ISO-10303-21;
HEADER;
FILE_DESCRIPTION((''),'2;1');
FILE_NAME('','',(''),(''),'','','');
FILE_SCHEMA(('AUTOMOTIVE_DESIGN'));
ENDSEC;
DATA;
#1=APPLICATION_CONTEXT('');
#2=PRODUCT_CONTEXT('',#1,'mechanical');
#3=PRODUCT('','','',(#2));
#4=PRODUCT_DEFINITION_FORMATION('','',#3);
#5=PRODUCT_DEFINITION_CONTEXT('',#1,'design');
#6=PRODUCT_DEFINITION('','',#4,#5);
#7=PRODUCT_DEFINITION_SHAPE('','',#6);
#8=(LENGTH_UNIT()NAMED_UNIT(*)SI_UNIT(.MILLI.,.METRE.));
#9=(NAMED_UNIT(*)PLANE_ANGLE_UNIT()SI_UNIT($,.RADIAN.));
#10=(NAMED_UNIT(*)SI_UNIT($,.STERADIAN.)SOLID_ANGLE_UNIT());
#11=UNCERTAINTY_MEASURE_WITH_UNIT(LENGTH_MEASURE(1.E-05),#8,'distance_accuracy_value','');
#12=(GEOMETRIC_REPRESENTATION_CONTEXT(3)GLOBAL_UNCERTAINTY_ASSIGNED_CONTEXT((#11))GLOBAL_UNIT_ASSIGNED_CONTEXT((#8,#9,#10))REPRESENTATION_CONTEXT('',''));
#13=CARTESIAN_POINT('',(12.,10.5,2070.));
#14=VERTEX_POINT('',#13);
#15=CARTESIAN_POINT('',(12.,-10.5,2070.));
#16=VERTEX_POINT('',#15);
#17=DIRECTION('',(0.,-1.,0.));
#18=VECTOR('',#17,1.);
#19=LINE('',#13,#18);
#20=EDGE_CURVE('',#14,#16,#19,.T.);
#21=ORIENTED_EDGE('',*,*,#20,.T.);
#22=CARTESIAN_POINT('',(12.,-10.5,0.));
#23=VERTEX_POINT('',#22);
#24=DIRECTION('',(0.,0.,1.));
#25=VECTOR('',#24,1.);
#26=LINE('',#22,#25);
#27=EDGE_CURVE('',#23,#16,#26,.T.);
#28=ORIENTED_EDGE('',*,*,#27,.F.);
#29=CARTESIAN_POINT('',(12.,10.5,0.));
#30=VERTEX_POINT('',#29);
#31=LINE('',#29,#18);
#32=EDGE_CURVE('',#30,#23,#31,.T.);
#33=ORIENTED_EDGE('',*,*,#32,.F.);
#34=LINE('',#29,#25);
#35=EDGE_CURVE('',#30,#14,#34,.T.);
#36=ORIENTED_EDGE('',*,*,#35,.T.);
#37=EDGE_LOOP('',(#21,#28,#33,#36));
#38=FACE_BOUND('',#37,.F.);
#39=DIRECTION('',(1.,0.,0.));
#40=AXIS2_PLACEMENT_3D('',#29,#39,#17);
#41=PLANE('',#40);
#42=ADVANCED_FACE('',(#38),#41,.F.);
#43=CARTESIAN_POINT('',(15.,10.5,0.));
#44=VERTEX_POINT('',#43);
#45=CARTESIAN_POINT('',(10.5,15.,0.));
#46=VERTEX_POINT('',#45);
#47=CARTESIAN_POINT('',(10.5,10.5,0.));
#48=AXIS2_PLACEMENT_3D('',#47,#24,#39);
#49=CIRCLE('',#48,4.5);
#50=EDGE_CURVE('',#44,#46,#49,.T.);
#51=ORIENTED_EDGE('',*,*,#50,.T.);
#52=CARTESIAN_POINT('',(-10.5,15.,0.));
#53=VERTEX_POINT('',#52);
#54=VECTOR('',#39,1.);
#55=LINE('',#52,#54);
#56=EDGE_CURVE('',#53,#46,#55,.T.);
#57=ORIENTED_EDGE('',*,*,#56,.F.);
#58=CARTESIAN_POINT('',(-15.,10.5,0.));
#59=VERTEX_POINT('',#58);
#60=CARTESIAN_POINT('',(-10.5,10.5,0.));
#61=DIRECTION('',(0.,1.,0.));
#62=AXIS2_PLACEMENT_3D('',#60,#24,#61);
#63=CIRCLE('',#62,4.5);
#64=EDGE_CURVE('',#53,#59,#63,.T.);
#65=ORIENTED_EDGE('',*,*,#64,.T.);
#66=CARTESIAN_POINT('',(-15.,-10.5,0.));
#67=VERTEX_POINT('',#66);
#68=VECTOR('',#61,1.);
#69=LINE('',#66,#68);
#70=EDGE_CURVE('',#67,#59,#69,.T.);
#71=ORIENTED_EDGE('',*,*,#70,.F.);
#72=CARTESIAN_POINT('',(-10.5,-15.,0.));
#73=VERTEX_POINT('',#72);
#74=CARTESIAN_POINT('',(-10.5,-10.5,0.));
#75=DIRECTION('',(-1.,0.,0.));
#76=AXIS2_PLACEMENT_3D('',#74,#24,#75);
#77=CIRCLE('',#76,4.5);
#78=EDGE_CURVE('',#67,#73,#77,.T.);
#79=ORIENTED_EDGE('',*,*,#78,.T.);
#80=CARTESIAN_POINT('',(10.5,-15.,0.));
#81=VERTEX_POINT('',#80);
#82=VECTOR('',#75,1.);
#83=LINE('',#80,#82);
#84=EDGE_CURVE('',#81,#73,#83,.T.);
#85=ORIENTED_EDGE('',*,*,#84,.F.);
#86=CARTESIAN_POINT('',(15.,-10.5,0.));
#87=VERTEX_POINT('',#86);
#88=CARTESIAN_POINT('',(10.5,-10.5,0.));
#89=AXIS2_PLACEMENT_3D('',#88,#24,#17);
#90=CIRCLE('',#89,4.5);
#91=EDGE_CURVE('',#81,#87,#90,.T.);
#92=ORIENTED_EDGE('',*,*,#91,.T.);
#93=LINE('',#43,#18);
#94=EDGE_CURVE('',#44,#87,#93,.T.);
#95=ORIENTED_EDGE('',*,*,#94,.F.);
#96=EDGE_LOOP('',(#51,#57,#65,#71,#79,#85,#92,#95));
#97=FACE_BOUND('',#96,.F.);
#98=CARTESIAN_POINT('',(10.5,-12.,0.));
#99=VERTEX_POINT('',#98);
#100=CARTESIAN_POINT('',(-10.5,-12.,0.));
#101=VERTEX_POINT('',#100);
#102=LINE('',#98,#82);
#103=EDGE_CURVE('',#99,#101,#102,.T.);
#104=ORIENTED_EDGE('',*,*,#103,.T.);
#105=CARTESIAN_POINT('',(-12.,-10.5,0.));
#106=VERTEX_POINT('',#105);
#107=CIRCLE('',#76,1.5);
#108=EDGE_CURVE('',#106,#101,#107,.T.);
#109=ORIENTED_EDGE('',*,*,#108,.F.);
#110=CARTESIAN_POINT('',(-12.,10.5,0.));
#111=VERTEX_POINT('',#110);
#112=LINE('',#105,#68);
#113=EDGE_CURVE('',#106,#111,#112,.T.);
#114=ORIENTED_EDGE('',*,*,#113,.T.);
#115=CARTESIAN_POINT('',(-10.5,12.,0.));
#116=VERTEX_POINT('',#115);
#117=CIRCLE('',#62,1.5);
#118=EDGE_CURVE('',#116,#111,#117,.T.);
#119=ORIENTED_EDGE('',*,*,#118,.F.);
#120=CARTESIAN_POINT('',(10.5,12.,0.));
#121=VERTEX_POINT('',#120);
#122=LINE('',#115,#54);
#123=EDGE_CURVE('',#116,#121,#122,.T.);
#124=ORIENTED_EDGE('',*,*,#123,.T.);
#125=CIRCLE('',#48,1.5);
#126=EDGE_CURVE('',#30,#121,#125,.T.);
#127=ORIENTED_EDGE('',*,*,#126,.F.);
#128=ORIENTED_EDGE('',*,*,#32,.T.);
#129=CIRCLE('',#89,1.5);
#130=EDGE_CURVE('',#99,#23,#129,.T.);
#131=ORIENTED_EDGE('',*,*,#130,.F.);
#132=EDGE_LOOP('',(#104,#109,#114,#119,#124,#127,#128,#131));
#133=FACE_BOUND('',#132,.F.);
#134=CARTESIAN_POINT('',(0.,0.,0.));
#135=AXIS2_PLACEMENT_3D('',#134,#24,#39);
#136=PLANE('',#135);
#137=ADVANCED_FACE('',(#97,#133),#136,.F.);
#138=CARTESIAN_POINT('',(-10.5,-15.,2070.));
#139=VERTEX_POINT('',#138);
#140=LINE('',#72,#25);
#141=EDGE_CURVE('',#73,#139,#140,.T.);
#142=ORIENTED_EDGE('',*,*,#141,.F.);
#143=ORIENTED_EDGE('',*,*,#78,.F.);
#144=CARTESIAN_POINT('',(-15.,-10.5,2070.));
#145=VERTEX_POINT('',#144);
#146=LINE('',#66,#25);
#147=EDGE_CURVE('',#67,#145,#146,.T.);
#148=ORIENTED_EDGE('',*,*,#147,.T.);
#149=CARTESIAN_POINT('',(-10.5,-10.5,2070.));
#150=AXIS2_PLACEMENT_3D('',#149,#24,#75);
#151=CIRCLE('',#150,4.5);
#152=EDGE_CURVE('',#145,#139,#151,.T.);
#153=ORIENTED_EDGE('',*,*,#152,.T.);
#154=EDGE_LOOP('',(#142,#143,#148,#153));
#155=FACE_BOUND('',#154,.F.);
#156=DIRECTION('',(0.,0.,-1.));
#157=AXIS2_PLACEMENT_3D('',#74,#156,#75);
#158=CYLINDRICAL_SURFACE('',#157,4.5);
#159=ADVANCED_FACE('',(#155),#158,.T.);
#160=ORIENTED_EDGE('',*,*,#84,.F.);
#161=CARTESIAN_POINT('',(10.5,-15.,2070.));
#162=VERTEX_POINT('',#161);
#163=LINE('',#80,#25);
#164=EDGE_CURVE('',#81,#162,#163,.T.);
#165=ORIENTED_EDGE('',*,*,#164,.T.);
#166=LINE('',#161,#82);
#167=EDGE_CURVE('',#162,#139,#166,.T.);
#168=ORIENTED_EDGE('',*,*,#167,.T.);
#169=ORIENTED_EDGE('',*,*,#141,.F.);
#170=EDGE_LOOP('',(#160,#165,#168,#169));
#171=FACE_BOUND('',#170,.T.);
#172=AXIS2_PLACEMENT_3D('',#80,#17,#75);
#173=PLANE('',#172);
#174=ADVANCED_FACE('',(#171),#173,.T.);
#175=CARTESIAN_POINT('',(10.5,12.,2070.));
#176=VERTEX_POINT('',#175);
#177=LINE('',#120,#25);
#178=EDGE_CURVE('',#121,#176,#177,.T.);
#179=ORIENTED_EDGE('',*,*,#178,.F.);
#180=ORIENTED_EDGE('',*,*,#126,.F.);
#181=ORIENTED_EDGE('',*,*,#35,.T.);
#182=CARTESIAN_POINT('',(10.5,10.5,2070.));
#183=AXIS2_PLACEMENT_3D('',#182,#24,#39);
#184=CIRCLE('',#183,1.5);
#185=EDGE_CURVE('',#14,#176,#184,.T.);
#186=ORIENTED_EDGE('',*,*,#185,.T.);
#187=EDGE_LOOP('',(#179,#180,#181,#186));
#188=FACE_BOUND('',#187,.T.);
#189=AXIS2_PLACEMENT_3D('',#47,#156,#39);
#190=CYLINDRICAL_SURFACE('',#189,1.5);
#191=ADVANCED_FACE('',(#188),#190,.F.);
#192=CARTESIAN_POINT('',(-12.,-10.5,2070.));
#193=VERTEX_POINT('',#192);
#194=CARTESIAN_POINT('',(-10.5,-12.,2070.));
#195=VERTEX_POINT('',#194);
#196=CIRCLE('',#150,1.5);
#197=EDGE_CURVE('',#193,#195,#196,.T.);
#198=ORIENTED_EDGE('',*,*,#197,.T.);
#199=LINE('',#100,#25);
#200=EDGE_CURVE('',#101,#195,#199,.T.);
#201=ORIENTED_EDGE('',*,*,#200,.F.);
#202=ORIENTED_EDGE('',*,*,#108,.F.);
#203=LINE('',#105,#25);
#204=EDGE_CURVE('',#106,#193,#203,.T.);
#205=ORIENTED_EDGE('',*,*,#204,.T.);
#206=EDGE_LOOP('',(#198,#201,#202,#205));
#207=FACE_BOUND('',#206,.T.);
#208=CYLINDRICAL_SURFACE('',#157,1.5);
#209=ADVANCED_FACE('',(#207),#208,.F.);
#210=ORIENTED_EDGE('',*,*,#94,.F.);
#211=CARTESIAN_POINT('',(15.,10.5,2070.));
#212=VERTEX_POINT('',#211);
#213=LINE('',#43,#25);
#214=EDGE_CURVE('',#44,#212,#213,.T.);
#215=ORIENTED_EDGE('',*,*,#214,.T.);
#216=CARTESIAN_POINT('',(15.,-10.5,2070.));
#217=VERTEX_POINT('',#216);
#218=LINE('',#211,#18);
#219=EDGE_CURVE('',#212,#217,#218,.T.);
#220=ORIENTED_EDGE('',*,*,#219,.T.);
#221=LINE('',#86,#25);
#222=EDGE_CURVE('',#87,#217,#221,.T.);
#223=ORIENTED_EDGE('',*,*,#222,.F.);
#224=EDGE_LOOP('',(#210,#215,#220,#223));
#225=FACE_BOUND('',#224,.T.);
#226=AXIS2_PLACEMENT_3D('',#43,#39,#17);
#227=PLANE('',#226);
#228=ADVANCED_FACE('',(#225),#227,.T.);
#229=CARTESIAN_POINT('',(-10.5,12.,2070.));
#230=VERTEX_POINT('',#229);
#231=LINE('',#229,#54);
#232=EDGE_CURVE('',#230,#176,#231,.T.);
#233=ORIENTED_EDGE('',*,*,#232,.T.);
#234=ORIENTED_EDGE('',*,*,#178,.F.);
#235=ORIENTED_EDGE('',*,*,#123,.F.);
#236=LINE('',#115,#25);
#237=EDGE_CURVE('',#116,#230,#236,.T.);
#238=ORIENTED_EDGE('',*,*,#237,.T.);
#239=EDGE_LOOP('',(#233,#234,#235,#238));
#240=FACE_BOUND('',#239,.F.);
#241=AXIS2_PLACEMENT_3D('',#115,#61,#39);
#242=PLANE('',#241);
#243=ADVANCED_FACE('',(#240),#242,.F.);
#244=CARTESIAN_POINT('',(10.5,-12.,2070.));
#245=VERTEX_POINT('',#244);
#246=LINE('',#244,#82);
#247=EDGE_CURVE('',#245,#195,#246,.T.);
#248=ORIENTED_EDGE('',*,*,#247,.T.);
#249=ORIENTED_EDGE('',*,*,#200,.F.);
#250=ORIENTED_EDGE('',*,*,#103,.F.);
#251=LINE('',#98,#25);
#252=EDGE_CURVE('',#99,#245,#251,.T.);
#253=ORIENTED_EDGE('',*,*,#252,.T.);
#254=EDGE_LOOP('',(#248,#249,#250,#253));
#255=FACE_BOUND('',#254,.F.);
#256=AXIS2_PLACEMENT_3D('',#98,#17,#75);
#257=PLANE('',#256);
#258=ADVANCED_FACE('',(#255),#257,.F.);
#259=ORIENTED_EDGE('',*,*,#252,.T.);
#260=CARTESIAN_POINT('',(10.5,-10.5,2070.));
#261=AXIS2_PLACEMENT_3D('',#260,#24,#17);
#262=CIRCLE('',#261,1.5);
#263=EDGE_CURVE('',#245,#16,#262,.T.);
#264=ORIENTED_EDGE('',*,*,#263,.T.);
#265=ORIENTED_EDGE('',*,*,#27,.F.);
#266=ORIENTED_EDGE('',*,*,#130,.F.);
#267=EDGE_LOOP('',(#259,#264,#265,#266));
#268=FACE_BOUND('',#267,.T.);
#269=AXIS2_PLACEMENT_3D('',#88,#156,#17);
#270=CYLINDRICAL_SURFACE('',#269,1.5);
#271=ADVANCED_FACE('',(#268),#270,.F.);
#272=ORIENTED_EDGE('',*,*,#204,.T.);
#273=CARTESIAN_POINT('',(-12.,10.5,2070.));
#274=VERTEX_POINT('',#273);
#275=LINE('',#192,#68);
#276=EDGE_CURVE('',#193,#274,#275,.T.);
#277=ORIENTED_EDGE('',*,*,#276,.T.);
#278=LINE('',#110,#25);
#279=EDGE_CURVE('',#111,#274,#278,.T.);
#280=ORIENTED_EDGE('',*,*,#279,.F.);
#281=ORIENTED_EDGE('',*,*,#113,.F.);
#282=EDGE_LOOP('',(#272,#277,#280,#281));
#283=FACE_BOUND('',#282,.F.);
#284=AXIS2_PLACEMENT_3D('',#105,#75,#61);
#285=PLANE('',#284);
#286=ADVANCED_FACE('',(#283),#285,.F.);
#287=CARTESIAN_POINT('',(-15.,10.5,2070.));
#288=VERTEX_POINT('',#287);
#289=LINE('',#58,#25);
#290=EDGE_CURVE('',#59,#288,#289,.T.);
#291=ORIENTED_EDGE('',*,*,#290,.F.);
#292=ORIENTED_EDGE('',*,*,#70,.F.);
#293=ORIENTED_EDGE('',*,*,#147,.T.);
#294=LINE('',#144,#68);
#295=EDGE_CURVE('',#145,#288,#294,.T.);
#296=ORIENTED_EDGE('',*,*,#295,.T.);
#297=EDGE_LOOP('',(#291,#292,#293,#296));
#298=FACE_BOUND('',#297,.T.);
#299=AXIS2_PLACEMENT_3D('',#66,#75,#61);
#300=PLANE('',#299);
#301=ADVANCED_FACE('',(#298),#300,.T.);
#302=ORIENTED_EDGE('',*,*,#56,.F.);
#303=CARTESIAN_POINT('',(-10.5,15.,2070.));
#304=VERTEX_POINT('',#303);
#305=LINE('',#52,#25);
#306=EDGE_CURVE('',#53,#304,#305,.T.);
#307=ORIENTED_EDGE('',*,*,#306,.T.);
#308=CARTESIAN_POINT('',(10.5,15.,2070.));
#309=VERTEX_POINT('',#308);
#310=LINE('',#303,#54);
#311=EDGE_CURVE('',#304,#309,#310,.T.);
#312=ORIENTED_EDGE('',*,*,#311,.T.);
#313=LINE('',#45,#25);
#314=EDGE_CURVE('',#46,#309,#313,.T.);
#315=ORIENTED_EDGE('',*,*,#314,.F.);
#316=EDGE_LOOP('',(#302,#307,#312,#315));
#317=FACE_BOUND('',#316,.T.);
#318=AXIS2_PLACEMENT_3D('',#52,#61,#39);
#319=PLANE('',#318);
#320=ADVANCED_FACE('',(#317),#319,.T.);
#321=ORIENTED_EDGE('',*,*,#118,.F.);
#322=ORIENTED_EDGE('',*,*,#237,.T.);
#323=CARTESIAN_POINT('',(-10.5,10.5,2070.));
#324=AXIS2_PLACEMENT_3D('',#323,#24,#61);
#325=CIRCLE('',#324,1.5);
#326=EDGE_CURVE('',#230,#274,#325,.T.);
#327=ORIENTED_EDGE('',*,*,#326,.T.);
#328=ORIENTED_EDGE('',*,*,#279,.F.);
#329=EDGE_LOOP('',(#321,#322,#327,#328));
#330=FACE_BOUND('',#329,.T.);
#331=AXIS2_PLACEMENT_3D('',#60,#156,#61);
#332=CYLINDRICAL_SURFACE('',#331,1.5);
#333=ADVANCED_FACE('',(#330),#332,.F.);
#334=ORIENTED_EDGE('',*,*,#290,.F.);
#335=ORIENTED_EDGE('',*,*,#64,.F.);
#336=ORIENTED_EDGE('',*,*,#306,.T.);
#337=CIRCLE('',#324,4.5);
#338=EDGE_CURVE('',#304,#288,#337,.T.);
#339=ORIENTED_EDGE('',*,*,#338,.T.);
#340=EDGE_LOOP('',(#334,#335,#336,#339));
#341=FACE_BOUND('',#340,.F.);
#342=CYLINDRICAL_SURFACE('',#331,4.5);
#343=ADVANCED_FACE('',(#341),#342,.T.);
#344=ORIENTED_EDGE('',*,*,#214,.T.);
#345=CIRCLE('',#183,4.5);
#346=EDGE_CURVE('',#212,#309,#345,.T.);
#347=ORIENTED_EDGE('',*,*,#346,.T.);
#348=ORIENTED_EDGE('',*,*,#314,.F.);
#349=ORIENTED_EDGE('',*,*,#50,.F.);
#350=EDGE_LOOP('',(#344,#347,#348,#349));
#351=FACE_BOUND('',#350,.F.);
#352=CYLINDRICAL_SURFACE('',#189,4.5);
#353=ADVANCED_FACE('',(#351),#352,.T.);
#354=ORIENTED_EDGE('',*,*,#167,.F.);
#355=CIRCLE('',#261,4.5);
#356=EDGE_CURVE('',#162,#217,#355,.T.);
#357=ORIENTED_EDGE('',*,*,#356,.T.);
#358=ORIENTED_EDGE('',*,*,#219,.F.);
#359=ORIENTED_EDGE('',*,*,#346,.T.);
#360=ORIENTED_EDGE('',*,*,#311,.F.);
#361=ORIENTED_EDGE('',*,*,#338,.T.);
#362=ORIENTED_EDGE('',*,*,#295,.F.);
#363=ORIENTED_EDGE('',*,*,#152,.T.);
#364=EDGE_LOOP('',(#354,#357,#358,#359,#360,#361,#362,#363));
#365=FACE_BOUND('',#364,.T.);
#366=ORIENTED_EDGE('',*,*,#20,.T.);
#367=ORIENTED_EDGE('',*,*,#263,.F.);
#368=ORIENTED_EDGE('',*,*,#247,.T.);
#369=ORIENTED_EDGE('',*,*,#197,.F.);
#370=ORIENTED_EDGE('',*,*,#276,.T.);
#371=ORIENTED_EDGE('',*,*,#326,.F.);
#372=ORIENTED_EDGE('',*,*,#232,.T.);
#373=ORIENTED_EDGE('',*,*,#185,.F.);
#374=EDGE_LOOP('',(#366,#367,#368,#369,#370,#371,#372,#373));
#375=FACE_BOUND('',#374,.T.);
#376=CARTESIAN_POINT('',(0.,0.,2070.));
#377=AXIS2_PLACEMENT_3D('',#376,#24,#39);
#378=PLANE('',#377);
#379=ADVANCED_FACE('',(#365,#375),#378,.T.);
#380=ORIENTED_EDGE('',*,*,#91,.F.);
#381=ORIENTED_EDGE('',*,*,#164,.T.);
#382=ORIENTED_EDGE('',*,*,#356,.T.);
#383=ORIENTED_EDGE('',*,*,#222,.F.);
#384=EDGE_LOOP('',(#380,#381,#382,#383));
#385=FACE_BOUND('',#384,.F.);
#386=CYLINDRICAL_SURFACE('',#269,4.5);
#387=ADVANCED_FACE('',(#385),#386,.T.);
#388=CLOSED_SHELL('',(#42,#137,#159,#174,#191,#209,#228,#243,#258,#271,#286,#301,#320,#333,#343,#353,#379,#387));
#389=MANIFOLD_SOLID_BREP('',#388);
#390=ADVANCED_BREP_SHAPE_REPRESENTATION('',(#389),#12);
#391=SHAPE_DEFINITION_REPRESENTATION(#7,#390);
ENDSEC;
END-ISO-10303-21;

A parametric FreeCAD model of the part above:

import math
import FreeCAD as App
import Part
import Sketcher

V = App.Vector

doc = App.newDocument("Part")
body = doc.addObject("PartDesign::Body", "Body")

sketch1 = body.newObject("Sketcher::SketchObject", "Sketch")
sketch1.AttachmentSupport = (doc.getObject("XY_Plane"), [""])
sketch1.MapMode = "FlatFace"
sketch1.addGeometry([
    Part.LineSegment(V(-15, 10.5, 0), V(-15, -10.5, 0)),
    Part.ArcOfCircle(Part.Circle(V(-10.5, -10.5, 0), V(0, 0, 1), 4.5), math.radians(180), math.radians(270)),
    Part.LineSegment(V(-10.5, -15, 0), V(10.5, -15, 0)),
    Part.ArcOfCircle(Part.Circle(V(10.5, -10.5, 0), V(0, 0, 1), 4.5), math.radians(-90), math.radians(0)),
    Part.LineSegment(V(15, -10.5, 0), V(15, 10.5, 0)),
    Part.ArcOfCircle(Part.Circle(V(10.5, 10.5, 0), V(0, 0, 1), 4.5), math.radians(0), math.radians(90)),
    Part.LineSegment(V(10.5, 15, 0), V(-10.5, 15, 0)),
    Part.ArcOfCircle(Part.Circle(V(-10.5, 10.5, 0), V(0, 0, 1), 4.5), math.radians(90), math.radians(180)),
    Part.ArcOfCircle(Part.Circle(V(-10.5, 10.5, 0), V(0, 0, 1), 1.5), math.radians(90), math.radians(180)),
    Part.LineSegment(V(-10.5, 12, 0), V(10.5, 12, 0)),
    Part.ArcOfCircle(Part.Circle(V(10.5, 10.5, 0), V(0, 0, 1), 1.5), math.radians(0), math.radians(90)),
    Part.LineSegment(V(12, 10.5, 0), V(12, -10.5, 0)),
    Part.ArcOfCircle(Part.Circle(V(10.5, -10.5, 0), V(0, 0, 1), 1.5), math.radians(-90), math.radians(0)),
    Part.LineSegment(V(10.5, -12, 0), V(-10.5, -12, 0)),
    Part.ArcOfCircle(Part.Circle(V(-10.5, -10.5, 0), V(0, 0, 1), 1.5), math.radians(180), math.radians(270)),
    Part.LineSegment(V(-12, -10.5, 0), V(-12, 10.5, 0)),
], False)
sketch1.addConstraint([
    Sketcher.Constraint("Tangent", 0, 2, 1, 1),
    Sketcher.Constraint("Tangent", 1, 2, 2, 1),
    Sketcher.Constraint("Tangent", 2, 2, 3, 1),
    Sketcher.Constraint("Tangent", 3, 2, 4, 1),
    Sketcher.Constraint("Tangent", 4, 2, 5, 1),
    Sketcher.Constraint("Tangent", 5, 2, 6, 1),
    Sketcher.Constraint("Tangent", 6, 2, 7, 1),
    Sketcher.Constraint("Tangent", 7, 2, 0, 1),
    Sketcher.Constraint("Tangent", 8, 1, 9, 1),
    Sketcher.Constraint("Tangent", 9, 2, 10, 2),
    Sketcher.Constraint("Tangent", 10, 1, 11, 1),
    Sketcher.Constraint("Tangent", 11, 2, 12, 2),
    Sketcher.Constraint("Tangent", 12, 1, 13, 1),
    Sketcher.Constraint("Tangent", 13, 2, 14, 2),
    Sketcher.Constraint("Tangent", 14, 1, 15, 1),
    Sketcher.Constraint("Tangent", 15, 2, 8, 2),
    Sketcher.Constraint("Vertical", 0),
    Sketcher.Constraint("Horizontal", 2),
    Sketcher.Constraint("Vertical", 4),
    Sketcher.Constraint("Horizontal", 6),
    Sketcher.Constraint("Horizontal", 9),
    Sketcher.Constraint("Vertical", 11),
    Sketcher.Constraint("Horizontal", 13),
    Sketcher.Constraint("Vertical", 15),
    Sketcher.Constraint("Coincident", 8, 3, 7, 3),
    Sketcher.Constraint("Coincident", 10, 3, 5, 3),
    Sketcher.Constraint("Coincident", 12, 3, 3, 3),
    Sketcher.Constraint("Equal", 1, 3),
    Sketcher.Constraint("Equal", 3, 5),
    Sketcher.Constraint("Equal", 5, 7),
    Sketcher.Constraint("Equal", 12, 14),
    Sketcher.Constraint("Symmetric", 1, 3, 5, 3, -1, 1),
    Sketcher.Constraint("Equal", 13, 0),
    Sketcher.Constraint("Radius", 1, 4.5),
    Sketcher.Constraint("Radius", 8, 1.5),
    Sketcher.Constraint("DistanceX", 0, 2, -1, 1, 15.0),
])
pad1 = body.newObject("PartDesign::Pad", "Pad")
pad1.Profile = sketch1
pad1.Length = 2070

doc.recompute()
